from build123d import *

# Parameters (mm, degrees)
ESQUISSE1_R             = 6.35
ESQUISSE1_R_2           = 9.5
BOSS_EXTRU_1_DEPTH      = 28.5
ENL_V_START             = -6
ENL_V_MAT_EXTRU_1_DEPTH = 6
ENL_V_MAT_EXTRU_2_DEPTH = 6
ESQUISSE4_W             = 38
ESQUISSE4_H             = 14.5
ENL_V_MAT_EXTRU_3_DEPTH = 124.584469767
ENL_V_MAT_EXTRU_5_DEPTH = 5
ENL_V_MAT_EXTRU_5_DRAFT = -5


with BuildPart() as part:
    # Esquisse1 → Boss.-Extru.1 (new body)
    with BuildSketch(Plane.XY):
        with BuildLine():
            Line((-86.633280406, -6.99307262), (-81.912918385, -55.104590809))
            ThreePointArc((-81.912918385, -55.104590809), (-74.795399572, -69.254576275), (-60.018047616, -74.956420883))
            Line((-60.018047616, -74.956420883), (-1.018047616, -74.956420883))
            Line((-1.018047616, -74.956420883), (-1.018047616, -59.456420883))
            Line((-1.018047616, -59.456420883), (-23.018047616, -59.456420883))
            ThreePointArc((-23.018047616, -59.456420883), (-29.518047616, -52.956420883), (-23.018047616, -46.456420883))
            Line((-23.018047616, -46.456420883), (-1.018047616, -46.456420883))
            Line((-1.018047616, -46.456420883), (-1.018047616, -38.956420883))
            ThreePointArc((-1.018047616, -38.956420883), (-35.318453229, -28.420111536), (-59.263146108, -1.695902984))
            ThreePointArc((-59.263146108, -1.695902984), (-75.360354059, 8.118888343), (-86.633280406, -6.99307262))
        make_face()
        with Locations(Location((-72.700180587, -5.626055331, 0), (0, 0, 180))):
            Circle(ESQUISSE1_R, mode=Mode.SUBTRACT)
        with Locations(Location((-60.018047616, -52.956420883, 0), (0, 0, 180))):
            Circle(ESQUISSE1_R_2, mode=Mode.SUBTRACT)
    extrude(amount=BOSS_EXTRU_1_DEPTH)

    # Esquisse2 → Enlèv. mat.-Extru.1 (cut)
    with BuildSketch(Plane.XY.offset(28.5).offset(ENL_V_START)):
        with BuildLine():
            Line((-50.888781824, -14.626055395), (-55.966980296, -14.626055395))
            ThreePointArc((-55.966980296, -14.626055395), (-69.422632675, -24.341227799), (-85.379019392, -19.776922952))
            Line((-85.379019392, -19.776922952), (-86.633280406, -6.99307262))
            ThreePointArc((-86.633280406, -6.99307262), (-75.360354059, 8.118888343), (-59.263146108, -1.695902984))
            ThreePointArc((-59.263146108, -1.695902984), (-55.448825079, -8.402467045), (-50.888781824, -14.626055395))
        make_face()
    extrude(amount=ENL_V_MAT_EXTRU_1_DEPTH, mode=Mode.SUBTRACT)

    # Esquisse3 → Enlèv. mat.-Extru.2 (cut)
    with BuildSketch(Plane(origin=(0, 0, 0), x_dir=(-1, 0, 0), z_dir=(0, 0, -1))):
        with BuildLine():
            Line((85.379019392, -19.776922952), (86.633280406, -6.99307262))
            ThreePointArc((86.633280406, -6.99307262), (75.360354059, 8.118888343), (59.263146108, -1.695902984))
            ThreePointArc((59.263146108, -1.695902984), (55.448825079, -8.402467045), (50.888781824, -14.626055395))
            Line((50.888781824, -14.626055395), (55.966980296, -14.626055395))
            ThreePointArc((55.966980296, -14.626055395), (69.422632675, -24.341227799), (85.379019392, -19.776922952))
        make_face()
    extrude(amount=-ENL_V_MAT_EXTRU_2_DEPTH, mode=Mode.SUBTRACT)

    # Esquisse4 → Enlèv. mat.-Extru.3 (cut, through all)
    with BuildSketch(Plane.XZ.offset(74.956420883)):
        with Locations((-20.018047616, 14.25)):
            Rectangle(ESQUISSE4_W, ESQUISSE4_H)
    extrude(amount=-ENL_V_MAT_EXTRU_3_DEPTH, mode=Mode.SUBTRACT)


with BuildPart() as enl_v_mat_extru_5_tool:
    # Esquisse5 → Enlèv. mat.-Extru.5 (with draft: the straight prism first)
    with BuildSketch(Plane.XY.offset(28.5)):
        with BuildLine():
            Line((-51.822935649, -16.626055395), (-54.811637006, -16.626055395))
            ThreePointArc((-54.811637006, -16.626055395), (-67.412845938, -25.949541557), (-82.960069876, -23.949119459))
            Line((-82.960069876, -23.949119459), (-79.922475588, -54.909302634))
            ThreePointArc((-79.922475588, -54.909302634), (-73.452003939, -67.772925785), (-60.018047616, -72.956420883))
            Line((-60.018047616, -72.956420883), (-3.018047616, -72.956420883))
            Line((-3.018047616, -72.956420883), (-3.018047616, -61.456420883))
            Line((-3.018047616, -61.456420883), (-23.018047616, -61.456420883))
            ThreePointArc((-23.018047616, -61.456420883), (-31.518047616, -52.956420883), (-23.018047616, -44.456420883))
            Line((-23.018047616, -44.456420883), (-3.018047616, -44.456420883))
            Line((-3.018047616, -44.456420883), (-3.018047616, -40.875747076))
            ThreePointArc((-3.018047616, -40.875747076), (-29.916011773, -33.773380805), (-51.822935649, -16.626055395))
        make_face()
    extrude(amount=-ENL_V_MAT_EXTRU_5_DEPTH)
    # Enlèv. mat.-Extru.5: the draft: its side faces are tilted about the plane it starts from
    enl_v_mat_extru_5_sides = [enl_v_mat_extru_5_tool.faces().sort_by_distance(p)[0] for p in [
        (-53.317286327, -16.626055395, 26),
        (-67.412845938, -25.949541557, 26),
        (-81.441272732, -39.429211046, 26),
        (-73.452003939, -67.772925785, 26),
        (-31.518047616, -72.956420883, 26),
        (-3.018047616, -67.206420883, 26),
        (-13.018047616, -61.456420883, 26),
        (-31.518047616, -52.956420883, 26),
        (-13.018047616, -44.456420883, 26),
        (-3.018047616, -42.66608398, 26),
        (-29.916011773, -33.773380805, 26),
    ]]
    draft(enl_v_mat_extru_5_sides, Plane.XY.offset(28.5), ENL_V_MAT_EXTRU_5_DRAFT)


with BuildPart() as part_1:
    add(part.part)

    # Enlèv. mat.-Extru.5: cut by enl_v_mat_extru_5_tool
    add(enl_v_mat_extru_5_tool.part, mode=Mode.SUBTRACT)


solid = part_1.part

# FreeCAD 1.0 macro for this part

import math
import FreeCAD as App
import Part
import Sketcher
from FreeCAD import Vector


def faces_at(feature, points):
    """Names of the faces that lie closest to the given points."""
    faces = feature.Shape.Faces
    near = lambda p: min(range(len(faces)), key=lambda i: faces[i].distToShape(Part.Vertex(*p))[0])
    return sorted({f"Face{near(p) + 1}" for p in points})

doc = App.newDocument("Part")
body = doc.addObject("PartDesign::Body", "Body")

sketch1 = body.newObject("Sketcher::SketchObject", "Sketch")
sketch1.AttachmentSupport = (doc.getObject("XY_Plane"), [""])
sketch1.MapMode = "FlatFace"
sketch1.addGeometry(Part.LineSegment(Vector(-86.63328, -6.993073, 0), Vector(-81.912918, -55.104591, 0)), False)
sketch1.addGeometry(Part.ArcOfCircle(Part.Circle(Vector(-60.018048, -52.956421, 0), Vector(0, 0, 1), 22), math.radians(-174.396477), math.radians(-90)), False)
sketch1.addGeometry(Part.LineSegment(Vector(-60.018048, -74.956421, 0), Vector(-1.018048, -74.956421, 0)), False)
sketch1.addGeometry(Part.LineSegment(Vector(-1.018048, -74.956421, 0), Vector(-1.018048, -59.456421, 0)), False)
sketch1.addGeometry(Part.LineSegment(Vector(-1.018048, -59.456421, 0), Vector(-23.018048, -59.456421, 0)), False)
sketch1.addGeometry(Part.ArcOfCircle(Part.Circle(Vector(-23.018048, -52.956421, 0), Vector(0, 0, 1), 6.5), math.radians(90), math.radians(270)), False)
sketch1.addGeometry(Part.LineSegment(Vector(-23.018048, -46.456421, 0), Vector(-1.018048, -46.456421, 0)), False)
sketch1.addGeometry(Part.LineSegment(Vector(-1.018048, -46.456421, 0), Vector(-1.018048, -38.956421, 0)), False)
sketch1.addGeometry(Part.ArcOfCircle(Part.Circle(Vector(0.786908, 28.019262, 0), Vector(0, 0, 1), 67), math.radians(-153.671956), math.radians(-91.543714)), False)
sketch1.addGeometry(Part.ArcOfCircle(Part.Circle(Vector(-72.700181, -5.626055, 0), Vector(0, 0, 1), 14), math.radians(16.30349), math.radians(185.603523)), False)
sketch1.addGeometry(Part.Circle(Vector(-60.018048, -52.956421, 0), Vector(0, 0, 1), 9.5), False)
sketch1.addGeometry(Part.Circle(Vector(-72.700181, -5.626055, 0), Vector(0, 0, 1), 6.35), False)
sketch1.addConstraint(Sketcher.Constraint("Coincident", 0, 2, 1, 1))
sketch1.addConstraint(Sketcher.Constraint("Coincident", 1, 2, 2, 1))
sketch1.addConstraint(Sketcher.Constraint("Coincident", 2, 2, 3, 1))
sketch1.addConstraint(Sketcher.Constraint("Coincident", 3, 2, 4, 1))
sketch1.addConstraint(Sketcher.Constraint("Coincident", 4, 2, 5, 2))
sketch1.addConstraint(Sketcher.Constraint("Coincident", 5, 1, 6, 1))
sketch1.addConstraint(Sketcher.Constraint("Coincident", 6, 2, 7, 1))
sketch1.addConstraint(Sketcher.Constraint("Coincident", 7, 2, 8, 2))
sketch1.addConstraint(Sketcher.Constraint("Coincident", 8, 1, 9, 1))
sketch1.addConstraint(Sketcher.Constraint("Coincident", 9, 2, 0, 1))
sketch1.addConstraint(Sketcher.Constraint("Horizontal", 2))
sketch1.addConstraint(Sketcher.Constraint("Vertical", 3))
sketch1.addConstraint(Sketcher.Constraint("Horizontal", 4))
sketch1.addConstraint(Sketcher.Constraint("Horizontal", 6))
sketch1.addConstraint(Sketcher.Constraint("Vertical", 7))
sketch1.addConstraint(Sketcher.Constraint("Coincident", 10, 3, 1, 3))
sketch1.addConstraint(Sketcher.Constraint("Coincident", 11, 3, 9, 3))
sketch1.addConstraint(Sketcher.Constraint("Diameter", 10, 19.0))
sketch1.addConstraint(Sketcher.Constraint("Radius", 1, 22.0))
sketch1.addConstraint(Sketcher.Constraint("Radius", 8, 67.0))
sketch1.addConstraint(Sketcher.Constraint("Radius", 9, 14.0))
sketch1.addConstraint(Sketcher.Constraint("Diameter", 11, 12.7))
sketch1.addConstraint(Sketcher.Constraint("Radius", 5, 6.5))
sketch1.addConstraint(Sketcher.Constraint("DistanceX", 2, 1, 2, 2, 59.0))
sketch1.addConstraint(Sketcher.Constraint("DistanceX", 4, 2, 4, 1, 22.0))
sketch1.addConstraint(Sketcher.Constraint("DistanceX", 6, 1, 6, 2, 22.0))
sketch1.addConstraint(Sketcher.Constraint("DistanceY", 3, 1, 3, 2, 15.5))
sketch1.addConstraint(Sketcher.Constraint("DistanceY", 7, 1, 7, 2, 7.5))
sketch1.addConstraint(Sketcher.Constraint("DistanceX", 1, 3, 5, 3, 37.0))
sketch1.addConstraint(Sketcher.Constraint("DistanceX", 1, 2, 5, 3, 37.0))
sketch1.addConstraint(Sketcher.Constraint("DistanceX", 5, 1, 3, 2, 22.0))
sketch1.addConstraint(Sketcher.Constraint("DistanceX", 1, 3, 8, 1, 0.754902))
sketch1.addConstraint(Sketcher.Constraint("DistanceX", 9, 2, 9, 3, 13.9331))
sketch1.addConstraint(Sketcher.Constraint("DistanceY", 1, 3, -1, 1, 52.956421))
sketch1.addConstraint(Sketcher.Constraint("DistanceX", 9, 3, -1, 1, 72.700181))
sketch1.addConstraint(Sketcher.Constraint("DistanceX", 0, 2, -1, 1, 81.912918))
sketch1.addConstraint(Sketcher.Constraint("DistanceY", 0, 2, -1, 1, 55.104591))
sketch1.addConstraint(Sketcher.Constraint("DistanceX", 9, 3, 8, 3, 73.487088))
pad1 = body.newObject("PartDesign::Pad", "Pad")
pad1.Profile = sketch1
pad1.Length = 28.5

sketch2 = body.newObject("Sketcher::SketchObject", "Sketch001")
sketch2.AttachmentSupport = (doc.getObject("XY_Plane"), [""])
sketch2.MapMode = "FlatFace"
sketch2.AttachmentOffset = App.Placement(Vector(0, 0, 22.5), App.Rotation())
sketch2.addGeometry(Part.LineSegment(Vector(-56, -15, 0), Vector(-51, -15, 0)), False)
sketch2.addGeometry(Part.ArcOfCircle(Part.Circle(Vector(1, 28, 0), Vector(0, 0, 1), 67), math.radians(-153.67), math.radians(-140.47)), False)
sketch2.addGeometry(Part.ArcOfCircle(Part.Circle(Vector(-73, -6, 0), Vector(0, 0, 1), 14), math.radians(16), math.radians(186)), False)
sketch2.addGeometry(Part.LineSegment(Vector(-87, -7, 0), Vector(-85, -20, 0)), False)
sketch2.addGeometry(Part.ArcOfCircle(Part.Circle(Vector(-73, -6, 0), Vector(0, 0, 1), 19), math.radians(-132), math.radians(-28)), False)
sketch2.addConstraint(Sketcher.Constraint("Coincident", 0, 2, 1, 2))
sketch2.addConstraint(Sketcher.Constraint("Coincident", 1, 1, 2, 1))
sketch2.addConstraint(Sketcher.Constraint("Tangent", 2, 2, 3, 1))
sketch2.addConstraint(Sketcher.Constraint("Coincident", 3, 2, 4, 1))
sketch2.addConstraint(Sketcher.Constraint("Coincident", 4, 2, 0, 1))
sketch2.addConstraint(Sketcher.Constraint("Horizontal", 0))
sketch2.addConstraint(Sketcher.Constraint("Coincident", 4, 3, 2, 3))
sketch2.addConstraint(Sketcher.Constraint("Radius", 1, 67.0))
sketch2.addConstraint(Sketcher.Constraint("Radius", 2, 14.0))
sketch2.addConstraint(Sketcher.Constraint("Radius", 4, 19.0))
sketch2.addConstraint(Sketcher.Constraint("DistanceY", 0, 2, 2, 3, 9.0))
sketch2.addConstraint(Sketcher.Constraint("DistanceX", 0, 1, 0, 2, 5.078198))
sketch2.addConstraint(Sketcher.Constraint("DistanceX", 2, 2, 2, 3, 13.9331))
sketch2.addConstraint(Sketcher.Constraint("DistanceX", 2, 3, -1, 1, 72.700181))
sketch2.addConstraint(Sketcher.Constraint("DistanceX", 2, 3, 1, 3, 73.487088))
sketch2.addConstraint(Sketcher.Constraint("DistanceY", -1, 1, 1, 3, 28.019262))
pocket1 = body.newObject("PartDesign::Pocket", "Pocket")
pocket1.Profile = sketch2
pocket1.Length = 6
pocket1.Reversed = True

sketch3 = body.newObject("Sketcher::SketchObject", "Sketch002")
sketch3.AttachmentSupport = (doc.getObject("XY_Plane"), [""])
sketch3.MapMode = "FlatFace"
sketch3.addGeometry(Part.LineSegment(Vector(-85, -20, 0), Vector(-87, -7, 0)), False)
sketch3.addGeometry(Part.ArcOfCircle(Part.Circle(Vector(-73, -6, 0), Vector(0, 0, 1), 14), math.radians(16), math.radians(186)), False)
sketch3.addGeometry(Part.ArcOfCircle(Part.Circle(Vector(1, 28, 0), Vector(0, 0, 1), 67), math.radians(-153.67), math.radians(-140.47)), False)
sketch3.addGeometry(Part.LineSegment(Vector(-51, -15, 0), Vector(-56, -15, 0)), False)
sketch3.addGeometry(Part.ArcOfCircle(Part.Circle(Vector(-73, -6, 0), Vector(0, 0, 1), 19), math.radians(-132), math.radians(-28)), False)
sketch3.addConstraint(Sketcher.Constraint("Tangent", 0, 2, 1, 2))
sketch3.addConstraint(Sketcher.Constraint("Coincident", 1, 1, 2, 1))
sketch3.addConstraint(Sketcher.Constraint("Coincident", 2, 2, 3, 1))
sketch3.addConstraint(Sketcher.Constraint("Coincident", 3, 2, 4, 2))
sketch3.addConstraint(Sketcher.Constraint("Coincident", 4, 1, 0, 1))
sketch3.addConstraint(Sketcher.Constraint("Horizontal", 3))
sketch3.addConstraint(Sketcher.Constraint("Coincident", 4, 3, 1, 3))
sketch3.addConstraint(Sketcher.Constraint("Radius", 1, 14.0))
sketch3.addConstraint(Sketcher.Constraint("Radius", 2, 67.0))
sketch3.addConstraint(Sketcher.Constraint("Radius", 4, 19.0))
sketch3.addConstraint(Sketcher.Constraint("DistanceY", 2, 2, 1, 3, 9.0))
sketch3.addConstraint(Sketcher.Constraint("DistanceX", 3, 2, 3, 1, 5.078198))
sketch3.addConstraint(Sketcher.Constraint("DistanceX", 0, 2, 1, 3, 13.9331))
sketch3.addConstraint(Sketcher.Constraint("DistanceX", 1, 3, -1, 1, 72.700181))
sketch3.addConstraint(Sketcher.Constraint("DistanceX", 1, 3, 2, 3, 73.487088))
sketch3.addConstraint(Sketcher.Constraint("DistanceY", 1, 3, -1, 1, 5.626055))
pocket2 = body.newObject("PartDesign::Pocket", "Pocket001")
pocket2.Profile = sketch3
pocket2.Length = 6
pocket2.Reversed = True

sketch4 = body.newObject("Sketcher::SketchObject", "Sketch003")
sketch4.AttachmentSupport = (doc.getObject("XZ_Plane"), [""])
sketch4.MapMode = "FlatFace"
sketch4.AttachmentOffset = App.Placement(Vector(0, 0, 74.956421), App.Rotation())
sketch4.addGeometry(Part.LineSegment(Vector(-39, 22, 0), Vector(-39, 7, 0)), False)
sketch4.addGeometry(Part.LineSegment(Vector(-39, 7, 0), Vector(-1, 7, 0)), False)
sketch4.addGeometry(Part.LineSegment(Vector(-1, 7, 0), Vector(-1, 22, 0)), False)
sketch4.addGeometry(Part.LineSegment(Vector(-1, 22, 0), Vector(-39, 22, 0)), False)
sketch4.addConstraint(Sketcher.Constraint("Coincident", 0, 2, 1, 1))
sketch4.addConstraint(Sketcher.Constraint("Coincident", 1, 2, 2, 1))
sketch4.addConstraint(Sketcher.Constraint("Coincident", 2, 2, 3, 1))
sketch4.addConstraint(Sketcher.Constraint("Coincident", 3, 2, 0, 1))
sketch4.addConstraint(Sketcher.Constraint("Vertical", 0))
sketch4.addConstraint(Sketcher.Constraint("Horizontal", 1))
sketch4.addConstraint(Sketcher.Constraint("Vertical", 2))
sketch4.addConstraint(Sketcher.Constraint("Horizontal", 3))
sketch4.addConstraint(Sketcher.Constraint("DistanceX", 1, 1, 1, 2, 38.0))
sketch4.addConstraint(Sketcher.Constraint("DistanceY", 0, 2, 0, 1, 14.5))
sketch4.addConstraint(Sketcher.Constraint("DistanceY", -1, 1, 0, 2, 7.0))
sketch4.addConstraint(Sketcher.Constraint("DistanceX", 0, 2, -1, 1, 39.018048))
pocket3 = body.newObject("PartDesign::Pocket", "Pocket002")
pocket3.Profile = sketch4
pocket3.Type = "ThroughAll"
body2 = doc.addObject("PartDesign::Body", "Body001")

sketch5 = body2.newObject("Sketcher::SketchObject", "Sketch004")
sketch5.AttachmentSupport = (doc.getObject("XY_Plane001"), [""])
sketch5.MapMode = "FlatFace"
sketch5.AttachmentOffset = App.Placement(Vector(0, 0, 28.5), App.Rotation())
sketch5.addGeometry(Part.LineSegment(Vector(-51.8, -16.6, 0), Vector(-54.8, -16.6, 0)), False)
sketch5.addGeometry(Part.ArcOfCircle(Part.Circle(Vector(-72.7, -5.6, 0), Vector(0, 0, 1), 21), math.radians(-119), math.radians(-32)), False)
sketch5.addGeometry(Part.LineSegment(Vector(-83, -23.9, 0), Vector(-79.9, -54.9, 0)), False)
sketch5.addGeometry(Part.ArcOfCircle(Part.Circle(Vector(-60, -53, 0), Vector(0, 0, 1), 20), math.radians(-174), math.radians(-90)), False)
sketch5.addGeometry(Part.LineSegment(Vector(-60, -73, 0), Vector(-3, -73, 0)), False)
sketch5.addGeometry(Part.LineSegment(Vector(-3, -73, 0), Vector(-3, -61.5, 0)), False)
sketch5.addGeometry(Part.LineSegment(Vector(-3, -61.5, 0), Vector(-23, -61.5, 0)), False)
sketch5.addGeometry(Part.ArcOfCircle(Part.Circle(Vector(-23, -53, 0), Vector(0, 0, 1), 8.5), math.radians(90), math.radians(270)), False)
sketch5.addGeometry(Part.LineSegment(Vector(-23, -44.5, 0), Vector(-3, -44.5, 0)), False)
sketch5.addGeometry(Part.LineSegment(Vector(-3, -44.5, 0), Vector(-3, -40.9, 0)), False)
sketch5.addGeometry(Part.ArcOfCircle(Part.Circle(Vector(0.8, 28, 0), Vector(0, 0, 1), 69), math.radians(-140), math.radians(-93)), False)
sketch5.addConstraint(Sketcher.Constraint("Coincident", 0, 2, 1, 2))
sketch5.addConstraint(Sketcher.Constraint("Coincident", 1, 1, 2, 1))
sketch5.addConstraint(Sketcher.Constraint("Tangent", 2, 2, 3, 1))
sketch5.addConstraint(Sketcher.Constraint("Tangent", 3, 2, 4, 1))
sketch5.addConstraint(Sketcher.Constraint("Coincident", 4, 2, 5, 1))
sketch5.addConstraint(Sketcher.Constraint("Coincident", 5, 2, 6, 1))
sketch5.addConstraint(Sketcher.Constraint("Tangent", 6, 2, 7, 2))
sketch5.addConstraint(Sketcher.Constraint("Tangent", 7, 1, 8, 1))
sketch5.addConstraint(Sketcher.Constraint("Coincident", 8, 2, 9, 1))
sketch5.addConstraint(Sketcher.Constraint("Coincident", 9, 2, 10, 2))
sketch5.addConstraint(Sketcher.Constraint("Coincident", 10, 1, 0, 1))
sketch5.addConstraint(Sketcher.Constraint("Horizontal", 0))
sketch5.addConstraint(Sketcher.Constraint("Horizontal", 4))
sketch5.addConstraint(Sketcher.Constraint("Vertical", 5))
sketch5.addConstraint(Sketcher.Constraint("Horizontal", 6))
sketch5.addConstraint(Sketcher.Constraint("Horizontal", 8))
sketch5.addConstraint(Sketcher.Constraint("Vertical", 9))
sketch5.addConstraint(Sketcher.Constraint("Horizontal", 3, 3, 7, 3))
sketch5.addConstraint(Sketcher.Constraint("Vertical", 5, 2, 8, 2))
sketch5.addConstraint(Sketcher.Constraint("Radius", 1, 21.0))
sketch5.addConstraint(Sketcher.Constraint("Radius", 3, 20.0))
sketch5.addConstraint(Sketcher.Constraint("Radius", 10, 69.0))
sketch5.addConstraint(Sketcher.Constraint("Radius", 7, 8.5))
sketch5.addConstraint(Sketcher.Constraint("DistanceX", 4, 1, 4, 2, 57.0))
sketch5.addConstraint(Sketcher.Constraint("DistanceX", 6, 2, 6, 1, 20.0))
sketch5.addConstraint(Sketcher.Constraint("DistanceY", 0, 2, 1, 3, 11.0))
sketch5.addConstraint(Sketcher.Constraint("DistanceX", 0, 2, 0, 1, 2.988701))
sketch5.addConstraint(Sketcher.Constraint("DistanceY", 3, 3, 1, 1, 29.007301))
sketch5.addConstraint(Sketcher.Constraint("Distance", 2, 31.10884))
sketch5.addConstraint(Sketcher.Constraint("DistanceY", 9, 1, 9, 2, 3.580674))
sketch5.addConstraint(Sketcher.Constraint("DistanceX", 1, 3, -1, 1, 72.700181))
sketch5.addConstraint(Sketcher.Constraint("DistanceY", 3, 3, -1, 1, 52.956421))
sketch5.addConstraint(Sketcher.Constraint("DistanceX", 1, 1, -1, 1, 82.96007))
pad2 = body2.newObject("PartDesign::Pad", "Pad001")
pad2.Profile = sketch5
pad2.Length = 5
pad2.Reversed = True
doc.recompute()

datumplane = body2.newObject("PartDesign::Plane", "DatumPlane")
datumplane.AttachmentSupport = (doc.getObject("XY_Plane001"), [""])
datumplane.MapMode = "FlatFace"
datumplane.AttachmentOffset = App.Placement(Vector(0, 0, 28.5), App.Rotation())
draft = body2.newObject("PartDesign::Draft", "Draft")
draft.Base = (pad2, faces_at(pad2, [
    (-53.317, -16.626, 26),
    (-67.413, -25.95, 26),
    (-81.441, -39.429, 26),
    (-73.452, -67.773, 26),
    (-31.518, -72.956, 26),
    (-3.018, -67.206, 26),
    (-13.018, -61.456, 26),
    (-31.518, -52.956, 26),
    (-13.018, -44.456, 26),
    (-3.018, -42.666, 26),
    (-29.916, -33.773, 26),
]))
draft.NeutralPlane = (datumplane, [""])
draft.Angle = 5
draft.Reversed = True
doc.recompute()

boolean = body.newObject("PartDesign::Boolean", "Boolean")
boolean.Type = "Cut"
boolean.addObjects([body2])

doc.recompute()
